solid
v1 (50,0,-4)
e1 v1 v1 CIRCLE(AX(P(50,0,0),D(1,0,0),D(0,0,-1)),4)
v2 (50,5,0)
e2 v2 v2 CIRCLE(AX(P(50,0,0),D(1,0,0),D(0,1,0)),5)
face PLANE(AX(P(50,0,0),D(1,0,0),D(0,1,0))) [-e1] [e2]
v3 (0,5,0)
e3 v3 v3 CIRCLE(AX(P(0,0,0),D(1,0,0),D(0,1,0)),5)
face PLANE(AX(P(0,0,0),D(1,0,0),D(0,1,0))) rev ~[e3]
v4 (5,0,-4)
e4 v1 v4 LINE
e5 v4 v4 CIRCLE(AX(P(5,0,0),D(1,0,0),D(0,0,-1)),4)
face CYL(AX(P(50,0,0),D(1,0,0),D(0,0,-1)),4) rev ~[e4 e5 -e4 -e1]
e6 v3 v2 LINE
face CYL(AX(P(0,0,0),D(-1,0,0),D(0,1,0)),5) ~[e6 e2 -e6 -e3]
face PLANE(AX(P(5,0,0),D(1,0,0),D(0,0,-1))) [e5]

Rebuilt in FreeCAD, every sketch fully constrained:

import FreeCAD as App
import Part
import Sketcher

V = App.Vector

doc = App.newDocument("Part")
body = doc.addObject("PartDesign::Body", "Body")

# Sketch on YZ plane
sketch1 = body.newObject("Sketcher::SketchObject", "Sketch")
sketch1.AttachmentSupport = (doc.getObject("YZ_Plane"), [""])
sketch1.MapMode = "FlatFace"
sketch1.addGeometry(Part.Circle(V(0, 0, 0), V(0, 0, 1), 5), False)
sketch1.addConstraint([
    Sketcher.Constraint("Coincident", 0, 3, -1, 1),
    Sketcher.Constraint("Diameter", 0, 10.0),
])
pad1 = body.newObject("PartDesign::Pad", "Pad")
pad1.Profile = sketch1
pad1.Length = 50

# Sketch on YZ plane
sketch2 = body.newObject("Sketcher::SketchObject", "Sketch001")
sketch2.AttachmentSupport = (doc.getObject("YZ_Plane"), [""])
sketch2.MapMode = "FlatFace"
sketch2.AttachmentOffset = App.Placement(V(0, 0, 50), App.Rotation())
sketch2.addGeometry(Part.Circle(V(0, 0, 0), V(0, 0, 1), 4), False)
sketch2.addConstraint([
    Sketcher.Constraint("Coincident", 0, 3, -1, 1),
    Sketcher.Constraint("Diameter", 0, 8.0),
])
pocket1 = body.newObject("PartDesign::Pocket", "Pocket")
pocket1.Profile = sketch2
pocket1.Length = 45

doc.recompute()
